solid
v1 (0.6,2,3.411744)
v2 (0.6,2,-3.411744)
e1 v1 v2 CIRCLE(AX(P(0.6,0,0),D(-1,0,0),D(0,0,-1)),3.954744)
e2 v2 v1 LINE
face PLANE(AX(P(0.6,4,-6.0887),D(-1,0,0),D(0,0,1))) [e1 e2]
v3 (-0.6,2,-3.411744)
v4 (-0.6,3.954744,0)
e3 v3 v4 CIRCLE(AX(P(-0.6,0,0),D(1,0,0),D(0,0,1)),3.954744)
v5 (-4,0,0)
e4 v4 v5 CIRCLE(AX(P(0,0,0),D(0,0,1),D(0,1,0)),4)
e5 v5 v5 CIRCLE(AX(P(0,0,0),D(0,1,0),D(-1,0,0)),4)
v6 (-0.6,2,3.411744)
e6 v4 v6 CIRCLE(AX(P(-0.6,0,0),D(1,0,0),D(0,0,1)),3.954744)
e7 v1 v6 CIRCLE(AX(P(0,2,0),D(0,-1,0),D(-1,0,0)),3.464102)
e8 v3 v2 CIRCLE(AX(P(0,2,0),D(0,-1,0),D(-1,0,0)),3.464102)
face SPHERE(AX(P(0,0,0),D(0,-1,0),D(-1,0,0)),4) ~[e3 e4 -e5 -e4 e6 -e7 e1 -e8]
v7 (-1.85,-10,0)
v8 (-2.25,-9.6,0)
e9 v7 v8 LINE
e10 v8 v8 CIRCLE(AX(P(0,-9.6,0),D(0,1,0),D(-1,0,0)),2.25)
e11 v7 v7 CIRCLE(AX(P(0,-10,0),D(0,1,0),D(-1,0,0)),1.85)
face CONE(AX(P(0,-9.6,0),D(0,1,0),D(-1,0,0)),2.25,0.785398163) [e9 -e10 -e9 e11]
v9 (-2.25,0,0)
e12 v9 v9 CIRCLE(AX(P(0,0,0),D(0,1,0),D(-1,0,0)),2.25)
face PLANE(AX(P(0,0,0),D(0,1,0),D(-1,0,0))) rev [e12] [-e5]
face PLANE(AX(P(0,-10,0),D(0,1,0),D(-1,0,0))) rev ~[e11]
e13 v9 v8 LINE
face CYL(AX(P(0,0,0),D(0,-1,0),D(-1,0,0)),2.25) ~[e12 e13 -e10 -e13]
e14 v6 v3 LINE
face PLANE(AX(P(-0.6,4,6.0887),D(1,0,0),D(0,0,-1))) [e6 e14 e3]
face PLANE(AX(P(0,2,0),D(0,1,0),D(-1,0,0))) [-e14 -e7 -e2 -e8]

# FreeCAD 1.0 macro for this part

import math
import FreeCAD as App
import Part
import Sketcher
Q = App.Units.Quantity


def edges_at(feature, points):
    """Names of the edges that pass closest to the given points."""
    edges = feature.Shape.Edges
    near = lambda p: min(range(len(edges)), key=lambda i: edges[i].distToShape(Part.Vertex(*p))[0])
    return sorted({f"Edge{near(p) + 1}" for p in points})


def add_polygon(sketch, points):
    """Adds a closed chain of lines whose ends are joined by coincident constraints."""
    first, n = sketch.GeometryCount, len(points)
    for a, b in zip(points, points[1:] + points[:1]):
        sketch.addGeometry(Part.LineSegment(App.Vector(*a, 0), App.Vector(*b, 0)), False)
    for i in range(n):
        sketch.addConstraint(Sketcher.Constraint("Coincident", first + i, 2, first + (i + 1) % n, 1))

doc = App.newDocument("Part")
params = doc.addObject("Spreadsheet::Sheet", "Params")
for row, (alias, value) in enumerate([
    ("sketch1_height", "10 mm"),
    ("sketch1_radius", "4 mm"),
    ("sketch1_width", "2.25 mm"),
    ("revolution_angle", "360 deg"),
    ("chamfer_size", "0.4 mm"),
    ("sketch2_width", "1.2 mm"),
    ("pocket1_length", "2 mm"),
], start=1):
    params.set(f"A{row}", alias)
    params.set(f"B{row}", "=" + value)
    params.setAlias(f"B{row}", alias)

body = doc.addObject("PartDesign::Body", "Body")

# Sketch on XY plane
sketch1 = body.newObject("Sketcher::SketchObject", "Sketch")
sketch1.AttachmentSupport = (doc.getObject("XY_Plane"), [""])
sketch1.MapMode = "FlatFace"
sketch1.addGeometry([
    Part.LineSegment(App.Vector(-4, 0, 0), App.Vector(-2.25, 0, 0)),  # 0
    Part.LineSegment(App.Vector(-2.25, 0, 0), App.Vector(-2.25, -10, 0)),  # 1
    Part.LineSegment(App.Vector(-2.25, -10, 0), App.Vector(0, -10, 0)),  # 2
    Part.LineSegment(App.Vector(0, -10, 0), App.Vector(0, 4, 0)),  # 3
    Part.ArcOfCircle(Part.Circle(App.Vector(0, 0, 0), App.Vector(0, 0, 1), 4), math.radians(90), math.radians(180)),  # 4
], False)
sketch1.addConstraint([
    Sketcher.Constraint("Coincident", 0, 2, 1, 1),
    Sketcher.Constraint("Coincident", 1, 2, 2, 1),
    Sketcher.Constraint("Coincident", 2, 2, 3, 1),
    Sketcher.Constraint("Coincident", 3, 2, 4, 1),
    Sketcher.Constraint("Coincident", 4, 2, 0, 1),
    Sketcher.Constraint("Horizontal", 0),
    Sketcher.Constraint("Vertical", 1),
    Sketcher.Constraint("Horizontal", 2),
    Sketcher.Constraint("Vertical", 3),
    Sketcher.Constraint("Coincident", 4, 3, -1, 1),
    Sketcher.Constraint("PointOnObject", 0, 2, -1),
    Sketcher.Constraint("PointOnObject", 2, 2, -2),
    Sketcher.Constraint("DistanceY", 1, 2, 1, 1, Q("10 mm")),
    Sketcher.Constraint("Radius", 4, Q("4 mm")),
    Sketcher.Constraint("DistanceX", 2, 1, 2, 2, Q("2.25 mm")),
])
sketch1.setExpression("Constraints[12]", "Params.sketch1_height")
sketch1.setExpression("Constraints[13]", "Params.sketch1_radius")
sketch1.setExpression("Constraints[14]", "Params.sketch1_width")
revolution = body.newObject("PartDesign::Revolution", "Revolution")
revolution.Profile = sketch1
revolution.ReferenceAxis = (sketch1, ["V_Axis"])
revolution.setExpression("Angle", "Params.revolution_angle")
doc.recompute()

chamfer = body.newObject("PartDesign::Chamfer", "Chamfer")
chamfer.Base = (revolution, edges_at(revolution, [(2.25, -10, 0)]))
chamfer.setExpression("Size", "Params.chamfer_size")

# Sketch on XZ plane
sketch2 = body.newObject("Sketcher::SketchObject", "Sketch001")
sketch2.AttachmentSupport = (doc.getObject("XZ_Plane"), [""])
sketch2.MapMode = "FlatFace"
sketch2.AttachmentOffset = App.Placement(App.Vector(0, 0, -4), App.Rotation())
add_polygon(sketch2, [(0.6, -6.0887), (-0.6, -6.0887), (-0.6, 6.0887), (0.6, 6.0887)])  # lines 0-3
sketch2.addConstraint([
    Sketcher.Constraint("Horizontal", 0),
    Sketcher.Constraint("Vertical", 1),
    Sketcher.Constraint("Horizontal", 2),
    Sketcher.Constraint("Vertical", 3),
    Sketcher.Constraint("Symmetric", 0, 2, 2, 2, -1, 1),
    Sketcher.Constraint("DistanceX", 0, 2, 0, 1, Q("1.2 mm")),
    Sketcher.Constraint("DistanceY", 1, 1, 1, 2, Q("12.1774 mm")),
])
sketch2.setExpression("Constraints[9]", "Params.sketch2_width")
pocket1 = body.newObject("PartDesign::Pocket", "Pocket")
pocket1.Profile = sketch2
pocket1.setExpression("Length", "Params.pocket1_length")
pocket1.Reversed = True

doc.recompute()
